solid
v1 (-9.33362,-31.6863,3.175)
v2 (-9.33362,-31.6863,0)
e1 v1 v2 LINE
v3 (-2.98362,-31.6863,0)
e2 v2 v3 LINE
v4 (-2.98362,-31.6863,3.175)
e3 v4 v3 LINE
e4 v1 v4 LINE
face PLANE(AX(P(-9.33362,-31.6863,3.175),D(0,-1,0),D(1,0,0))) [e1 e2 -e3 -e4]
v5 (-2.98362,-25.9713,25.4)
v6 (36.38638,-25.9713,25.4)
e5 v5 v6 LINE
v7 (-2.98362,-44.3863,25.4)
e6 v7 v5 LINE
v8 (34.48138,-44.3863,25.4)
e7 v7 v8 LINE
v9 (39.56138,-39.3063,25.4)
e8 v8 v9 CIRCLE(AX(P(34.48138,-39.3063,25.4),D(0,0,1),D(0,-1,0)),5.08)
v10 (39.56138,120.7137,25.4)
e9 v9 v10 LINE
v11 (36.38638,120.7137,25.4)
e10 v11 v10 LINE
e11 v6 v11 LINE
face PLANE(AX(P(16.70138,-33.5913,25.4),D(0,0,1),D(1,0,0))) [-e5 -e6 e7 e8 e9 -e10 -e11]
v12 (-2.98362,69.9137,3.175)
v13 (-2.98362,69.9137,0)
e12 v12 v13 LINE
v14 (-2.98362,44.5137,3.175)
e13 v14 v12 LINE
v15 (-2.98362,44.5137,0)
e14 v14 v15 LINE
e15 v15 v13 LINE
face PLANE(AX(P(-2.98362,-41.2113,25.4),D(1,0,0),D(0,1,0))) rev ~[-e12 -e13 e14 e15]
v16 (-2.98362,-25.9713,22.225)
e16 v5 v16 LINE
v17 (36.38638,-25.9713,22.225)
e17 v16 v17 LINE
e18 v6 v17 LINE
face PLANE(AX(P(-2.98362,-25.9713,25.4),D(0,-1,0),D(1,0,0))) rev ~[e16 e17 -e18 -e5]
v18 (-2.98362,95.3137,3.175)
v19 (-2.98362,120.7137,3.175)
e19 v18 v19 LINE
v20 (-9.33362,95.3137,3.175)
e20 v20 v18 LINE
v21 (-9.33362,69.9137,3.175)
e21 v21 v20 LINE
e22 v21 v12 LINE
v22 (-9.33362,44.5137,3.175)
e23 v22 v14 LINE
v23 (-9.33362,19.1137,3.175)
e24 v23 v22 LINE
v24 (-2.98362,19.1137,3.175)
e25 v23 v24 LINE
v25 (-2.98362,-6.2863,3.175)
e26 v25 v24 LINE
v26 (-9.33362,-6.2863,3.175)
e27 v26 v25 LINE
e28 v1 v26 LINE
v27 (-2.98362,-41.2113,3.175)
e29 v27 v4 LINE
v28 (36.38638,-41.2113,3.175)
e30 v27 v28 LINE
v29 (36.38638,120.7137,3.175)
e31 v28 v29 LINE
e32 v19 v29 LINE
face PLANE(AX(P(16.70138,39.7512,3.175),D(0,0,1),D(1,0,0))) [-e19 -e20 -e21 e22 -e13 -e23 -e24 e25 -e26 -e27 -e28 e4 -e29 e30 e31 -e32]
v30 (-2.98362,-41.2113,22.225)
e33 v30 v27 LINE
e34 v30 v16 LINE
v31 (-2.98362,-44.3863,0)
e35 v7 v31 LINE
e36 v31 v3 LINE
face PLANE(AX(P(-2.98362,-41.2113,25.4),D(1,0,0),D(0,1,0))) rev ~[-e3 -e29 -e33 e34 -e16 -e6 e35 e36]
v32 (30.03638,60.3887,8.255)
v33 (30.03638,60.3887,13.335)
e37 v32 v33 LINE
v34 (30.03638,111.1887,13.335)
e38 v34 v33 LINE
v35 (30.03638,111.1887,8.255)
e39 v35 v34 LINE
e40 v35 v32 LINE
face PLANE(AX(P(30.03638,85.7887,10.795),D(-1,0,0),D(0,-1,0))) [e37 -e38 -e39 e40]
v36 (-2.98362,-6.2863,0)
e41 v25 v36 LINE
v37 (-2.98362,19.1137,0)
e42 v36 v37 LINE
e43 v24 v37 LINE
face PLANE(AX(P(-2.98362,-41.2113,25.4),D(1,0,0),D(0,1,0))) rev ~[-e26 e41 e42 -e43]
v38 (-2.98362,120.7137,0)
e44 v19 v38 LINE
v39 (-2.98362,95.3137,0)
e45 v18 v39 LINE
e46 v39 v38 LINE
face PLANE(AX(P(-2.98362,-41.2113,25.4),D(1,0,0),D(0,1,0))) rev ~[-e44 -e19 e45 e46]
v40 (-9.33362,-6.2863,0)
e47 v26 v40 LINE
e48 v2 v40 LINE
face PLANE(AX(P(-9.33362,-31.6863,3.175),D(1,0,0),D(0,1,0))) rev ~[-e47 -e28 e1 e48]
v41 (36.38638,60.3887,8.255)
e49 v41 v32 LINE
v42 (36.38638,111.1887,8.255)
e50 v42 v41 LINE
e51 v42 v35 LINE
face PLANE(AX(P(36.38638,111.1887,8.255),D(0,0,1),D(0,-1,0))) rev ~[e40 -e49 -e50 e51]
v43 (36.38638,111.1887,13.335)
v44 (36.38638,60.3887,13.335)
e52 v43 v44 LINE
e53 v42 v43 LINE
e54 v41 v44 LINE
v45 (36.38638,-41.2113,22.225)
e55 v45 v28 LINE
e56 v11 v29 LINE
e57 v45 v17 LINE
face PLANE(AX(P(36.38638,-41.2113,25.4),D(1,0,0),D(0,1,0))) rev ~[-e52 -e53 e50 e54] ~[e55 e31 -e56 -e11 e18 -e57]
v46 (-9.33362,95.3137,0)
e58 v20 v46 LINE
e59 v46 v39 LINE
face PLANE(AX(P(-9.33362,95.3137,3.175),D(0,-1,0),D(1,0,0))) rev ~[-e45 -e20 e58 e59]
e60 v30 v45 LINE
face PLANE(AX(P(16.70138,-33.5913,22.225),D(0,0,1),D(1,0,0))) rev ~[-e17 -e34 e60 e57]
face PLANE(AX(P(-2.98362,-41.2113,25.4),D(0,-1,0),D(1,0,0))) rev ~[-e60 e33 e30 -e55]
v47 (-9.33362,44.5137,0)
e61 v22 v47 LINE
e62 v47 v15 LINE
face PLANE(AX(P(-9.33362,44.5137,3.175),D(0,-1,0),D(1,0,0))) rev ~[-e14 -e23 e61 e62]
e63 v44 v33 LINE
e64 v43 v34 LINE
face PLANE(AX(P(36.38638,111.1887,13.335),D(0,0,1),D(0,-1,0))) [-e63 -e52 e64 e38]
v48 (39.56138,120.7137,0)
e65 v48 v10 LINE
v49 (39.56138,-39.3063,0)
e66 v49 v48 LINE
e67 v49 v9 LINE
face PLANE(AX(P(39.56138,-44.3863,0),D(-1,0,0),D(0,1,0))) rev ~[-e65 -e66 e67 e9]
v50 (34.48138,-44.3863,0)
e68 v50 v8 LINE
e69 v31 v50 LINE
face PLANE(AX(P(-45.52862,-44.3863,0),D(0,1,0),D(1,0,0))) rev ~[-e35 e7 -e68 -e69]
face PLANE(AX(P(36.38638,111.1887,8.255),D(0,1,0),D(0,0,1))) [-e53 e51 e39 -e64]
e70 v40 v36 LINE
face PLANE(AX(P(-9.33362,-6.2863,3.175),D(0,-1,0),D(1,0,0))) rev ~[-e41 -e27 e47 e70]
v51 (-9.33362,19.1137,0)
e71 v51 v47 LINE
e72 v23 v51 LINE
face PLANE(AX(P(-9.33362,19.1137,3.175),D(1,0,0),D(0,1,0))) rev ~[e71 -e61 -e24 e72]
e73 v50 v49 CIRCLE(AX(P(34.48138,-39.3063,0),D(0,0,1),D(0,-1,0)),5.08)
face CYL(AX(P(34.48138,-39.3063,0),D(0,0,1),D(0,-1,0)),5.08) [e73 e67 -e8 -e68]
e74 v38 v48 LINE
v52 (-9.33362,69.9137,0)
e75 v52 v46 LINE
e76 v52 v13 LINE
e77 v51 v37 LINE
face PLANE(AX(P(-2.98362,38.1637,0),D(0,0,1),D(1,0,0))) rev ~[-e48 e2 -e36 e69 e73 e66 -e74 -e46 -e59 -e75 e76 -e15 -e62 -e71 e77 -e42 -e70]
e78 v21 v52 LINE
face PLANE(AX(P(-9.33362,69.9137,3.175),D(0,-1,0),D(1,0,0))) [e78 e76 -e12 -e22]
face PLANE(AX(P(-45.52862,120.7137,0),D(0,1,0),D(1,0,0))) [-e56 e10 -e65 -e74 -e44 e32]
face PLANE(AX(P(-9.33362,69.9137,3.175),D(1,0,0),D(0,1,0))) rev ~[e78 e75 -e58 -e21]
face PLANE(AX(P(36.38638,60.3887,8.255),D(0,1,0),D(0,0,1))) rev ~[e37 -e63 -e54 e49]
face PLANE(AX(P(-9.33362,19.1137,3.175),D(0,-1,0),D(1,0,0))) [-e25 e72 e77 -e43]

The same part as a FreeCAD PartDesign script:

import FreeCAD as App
import Part
import Sketcher
Q = App.Units.Quantity


def edges_at(feature, points):
    """Names of the edges that pass closest to the given points."""
    edges = feature.Shape.Edges
    near = lambda p: min(range(len(edges)), key=lambda i: edges[i].distToShape(Part.Vertex(*p))[0])
    return sorted({f"Edge{near(p) + 1}" for p in points})

doc = App.newDocument("Part")
body = doc.addObject("PartDesign::Body", "Body")

sketch1 = body.newObject("Sketcher::SketchObject", "Sketch")
sketch1.AttachmentSupport = (doc.getObject("XY_Plane"), [""])
sketch1.MapMode = "FlatFace"
sketch1.addGeometry(Part.LineSegment(App.Vector(-46, 121, 0), App.Vector(-46, -44, 0)), False)
sketch1.addGeometry(Part.LineSegment(App.Vector(-46, -44, 0), App.Vector(40, -44, 0)), False)
sketch1.addGeometry(Part.LineSegment(App.Vector(40, -44, 0), App.Vector(40, 121, 0)), False)
sketch1.addGeometry(Part.LineSegment(App.Vector(40, 121, 0), App.Vector(-46, 121, 0)), False)
sketch1.addConstraint(Sketcher.Constraint("Coincident", 0, 2, 1, 1))
sketch1.addConstraint(Sketcher.Constraint("Coincident", 1, 2, 2, 1))
sketch1.addConstraint(Sketcher.Constraint("Coincident", 2, 2, 3, 1))
sketch1.addConstraint(Sketcher.Constraint("Coincident", 3, 2, 0, 1))
sketch1.addConstraint(Sketcher.Constraint("Vertical", 0))
sketch1.addConstraint(Sketcher.Constraint("Horizontal", 1))
sketch1.addConstraint(Sketcher.Constraint("Vertical", 2))
sketch1.addConstraint(Sketcher.Constraint("Horizontal", 3))
sketch1.addConstraint(Sketcher.Constraint("DistanceY", 0, 2, 0, 1, Q("6.5 in")))
sketch1.addConstraint(Sketcher.Constraint("DistanceX", 1, 1, 1, 2, Q("3.35 in")))
sketch1.addConstraint(Sketcher.Constraint("DistanceY", 0, 2, -1, 1, 44.3863))
sketch1.addConstraint(Sketcher.Constraint("DistanceX", 0, 2, -1, 1, 45.52862))
pad1 = body.newObject("PartDesign::Pad", "Pad")
pad1.Profile = sketch1
pad1.Length = Q("1 in")

sketch2 = body.newObject("Sketcher::SketchObject", "Sketch001")
sketch2.AttachmentSupport = (doc.getObject("XY_Plane"), [""])
sketch2.MapMode = "FlatFace"
sketch2.AttachmentOffset = App.Placement(App.Vector(0, 0, 1 * 25.4), App.Rotation())
sketch2.addGeometry(Part.LineSegment(App.Vector(-3, 121, 0), App.Vector(-3, -41, 0)), False)
sketch2.addGeometry(Part.LineSegment(App.Vector(-3, -41, 0), App.Vector(36, -41, 0)), False)
sketch2.addGeometry(Part.LineSegment(App.Vector(36, -41, 0), App.Vector(36, 121, 0)), False)
sketch2.addGeometry(Part.LineSegment(App.Vector(36, 121, 0), App.Vector(-3, 121, 0)), False)
sketch2.addConstraint(Sketcher.Constraint("Coincident", 0, 2, 1, 1))
sketch2.addConstraint(Sketcher.Constraint("Coincident", 1, 2, 2, 1))
sketch2.addConstraint(Sketcher.Constraint("Coincident", 2, 2, 3, 1))
sketch2.addConstraint(Sketcher.Constraint("Coincident", 3, 2, 0, 1))
sketch2.addConstraint(Sketcher.Constraint("Vertical", 0))
sketch2.addConstraint(Sketcher.Constraint("Horizontal", 1))
sketch2.addConstraint(Sketcher.Constraint("Vertical", 2))
sketch2.addConstraint(Sketcher.Constraint("Horizontal", 3))
sketch2.addConstraint(Sketcher.Constraint("DistanceX", 1, 1, 1, 2, Q("1.55 in")))
sketch2.addConstraint(Sketcher.Constraint("DistanceY", 0, 2, 0, 1, Q("6.375 in")))
sketch2.addConstraint(Sketcher.Constraint("DistanceY", 0, 2, -1, 1, 41.2113))
sketch2.addConstraint(Sketcher.Constraint("DistanceX", 0, 2, -1, 1, 2.98362))
pocket1 = body.newObject("PartDesign::Pocket", "Pocket")
pocket1.Profile = sketch2
pocket1.Length = Q("0.875 in")

sketch3 = body.newObject("Sketcher::SketchObject", "Sketch002")
sketch3.AttachmentSupport = (doc.getObject("YZ_Plane"), [""])
sketch3.MapMode = "FlatFace"
sketch3.AttachmentOffset = App.Placement(App.Vector(0, 0, 36.38638), App.Rotation())
sketch3.addGeometry(Part.LineSegment(App.Vector(111, 13, 0), App.Vector(111, 8, 0)), False)
sketch3.addGeometry(Part.LineSegment(App.Vector(111, 8, 0), App.Vector(60, 8, 0)), False)
sketch3.addGeometry(Part.LineSegment(App.Vector(60, 8, 0), App.Vector(60, 13, 0)), False)
sketch3.addGeometry(Part.LineSegment(App.Vector(60, 13, 0), App.Vector(111, 13, 0)), False)
sketch3.addConstraint(Sketcher.Constraint("Coincident", 0, 2, 1, 1))
sketch3.addConstraint(Sketcher.Constraint("Coincident", 1, 2, 2, 1))
sketch3.addConstraint(Sketcher.Constraint("Coincident", 2, 2, 3, 1))
sketch3.addConstraint(Sketcher.Constraint("Coincident", 3, 2, 0, 1))
sketch3.addConstraint(Sketcher.Constraint("Vertical", 0))
sketch3.addConstraint(Sketcher.Constraint("Horizontal", 1))
sketch3.addConstraint(Sketcher.Constraint("Vertical", 2))
sketch3.addConstraint(Sketcher.Constraint("Horizontal", 3))
sketch3.addConstraint(Sketcher.Constraint("DistanceX", 1, 2, 1, 1, Q("2 in")))
sketch3.addConstraint(Sketcher.Constraint("DistanceY", 0, 2, 0, 1, Q("0.2 in")))
sketch3.addConstraint(Sketcher.Constraint("DistanceY", -1, 1, 0, 2, Q("0.325 in")))
sketch3.addConstraint(Sketcher.Constraint("DistanceX", -1, 1, 0, 2, 111.1887))
pad2 = body.newObject("PartDesign::Pad", "Pad001")
pad2.Profile = sketch3
pad2.Length = Q("0.25 in")
pad2.Reversed = True

sketch4 = body.newObject("Sketcher::SketchObject", "Sketch003")
sketch4.AttachmentSupport = (doc.getObject("XY_Plane"), [""])
sketch4.MapMode = "FlatFace"
sketch4.AttachmentOffset = App.Placement(App.Vector(0, 0, 1 * 25.4), App.Rotation())
sketch4.addGeometry(Part.LineSegment(App.Vector(-3, 121, 0), App.Vector(-46, 121, 0)), False)
sketch4.addGeometry(Part.LineSegment(App.Vector(-46, 121, 0), App.Vector(-46, -44, 0)), False)
sketch4.addGeometry(Part.LineSegment(App.Vector(-46, -44, 0), App.Vector(-3, -44, 0)), False)
sketch4.addGeometry(Part.LineSegment(App.Vector(-3, -44, 0), App.Vector(-3, 121, 0)), False)
sketch4.addConstraint(Sketcher.Constraint("Coincident", 0, 2, 1, 1))
sketch4.addConstraint(Sketcher.Constraint("Coincident", 1, 2, 2, 1))
sketch4.addConstraint(Sketcher.Constraint("Coincident", 2, 2, 3, 1))
sketch4.addConstraint(Sketcher.Constraint("Coincident", 3, 2, 0, 1))
sketch4.addConstraint(Sketcher.Constraint("Horizontal", 0))
sketch4.addConstraint(Sketcher.Constraint("Vertical", 1))
sketch4.addConstraint(Sketcher.Constraint("Horizontal", 2))
sketch4.addConstraint(Sketcher.Constraint("Vertical", 3))
sketch4.addConstraint(Sketcher.Constraint("DistanceY", 1, 2, 1, 1, Q("6.5 in")))
sketch4.addConstraint(Sketcher.Constraint("DistanceX", 0, 2, 0, 1, Q("1.675 in")))
sketch4.addConstraint(Sketcher.Constraint("DistanceY", -1, 1, 0, 2, 120.7137))
sketch4.addConstraint(Sketcher.Constraint("DistanceX", 0, 2, -1, 1, 45.52862))
pocket2 = body.newObject("PartDesign::Pocket", "Pocket001")
pocket2.Profile = sketch4
pocket2.Type = "ThroughAll"

sketch5 = body.newObject("Sketcher::SketchObject", "Sketch004")
sketch5.AttachmentSupport = (doc.getObject("XY_Plane"), [""])
sketch5.MapMode = "FlatFace"
sketch5.AttachmentOffset = App.Placement(App.Vector(0, 0, 1 * 25.4), App.Rotation())
sketch5.addGeometry(Part.LineSegment(App.Vector(-3, -26, 0), App.Vector(-3, -41, 0)), False)
sketch5.addGeometry(Part.LineSegment(App.Vector(-3, -41, 0), App.Vector(36, -41, 0)), False)
sketch5.addGeometry(Part.LineSegment(App.Vector(36, -41, 0), App.Vector(36, -26, 0)), False)
sketch5.addGeometry(Part.LineSegment(App.Vector(36, -26, 0), App.Vector(-3, -26, 0)), False)
sketch5.addConstraint(Sketcher.Constraint("Coincident", 0, 2, 1, 1))
sketch5.addConstraint(Sketcher.Constraint("Coincident", 1, 2, 2, 1))
sketch5.addConstraint(Sketcher.Constraint("Coincident", 2, 2, 3, 1))
sketch5.addConstraint(Sketcher.Constraint("Coincident", 3, 2, 0, 1))
sketch5.addConstraint(Sketcher.Constraint("Vertical", 0))
sketch5.addConstraint(Sketcher.Constraint("Horizontal", 1))
sketch5.addConstraint(Sketcher.Constraint("Vertical", 2))
sketch5.addConstraint(Sketcher.Constraint("Horizontal", 3))
sketch5.addConstraint(Sketcher.Constraint("DistanceY", 0, 2, 0, 1, Q("0.6 in")))
sketch5.addConstraint(Sketcher.Constraint("DistanceX", 1, 1, 1, 2, Q("1.55 in")))
sketch5.addConstraint(Sketcher.Constraint("DistanceY", 0, 2, -1, 1, 41.2113))
sketch5.addConstraint(Sketcher.Constraint("DistanceX", 0, 2, -1, 1, 2.98362))
pad3 = body.newObject("PartDesign::Pad", "Pad002")
pad3.Profile = sketch5
pad3.Length = Q("0.125 in")
pad3.Reversed = True

sketch6 = body.newObject("Sketcher::SketchObject", "Sketch005")
sketch6.AttachmentSupport = (doc.getObject("XY_Plane"), [""])
sketch6.MapMode = "FlatFace"
sketch6.AttachmentOffset = App.Placement(App.Vector(0, 0, 0.125 * 25.4), App.Rotation())
sketch6.addGeometry(Part.LineSegment(App.Vector(-9, 95, 0), App.Vector(-9, 70, 0)), False)
sketch6.addGeometry(Part.LineSegment(App.Vector(-9, 70, 0), App.Vector(-3, 70, 0)), False)
sketch6.addGeometry(Part.LineSegment(App.Vector(-3, 70, 0), App.Vector(-3, 95, 0)), False)
sketch6.addGeometry(Part.LineSegment(App.Vector(-3, 95, 0), App.Vector(-9, 95, 0)), False)
sketch6.addGeometry(Part.LineSegment(App.Vector(-9, 45, 0), App.Vector(-9, 19, 0)), False)
sketch6.addGeometry(Part.LineSegment(App.Vector(-9, 19, 0), App.Vector(-3, 19, 0)), False)
sketch6.addGeometry(Part.LineSegment(App.Vector(-3, 19, 0), App.Vector(-3, 45, 0)), False)
sketch6.addGeometry(Part.LineSegment(App.Vector(-3, 45, 0), App.Vector(-9, 45, 0)), False)
sketch6.addGeometry(Part.LineSegment(App.Vector(-9, -6, 0), App.Vector(-9, -32, 0)), False)
sketch6.addGeometry(Part.LineSegment(App.Vector(-9, -32, 0), App.Vector(-3, -32, 0)), False)
sketch6.addGeometry(Part.LineSegment(App.Vector(-3, -32, 0), App.Vector(-3, -6, 0)), False)
sketch6.addGeometry(Part.LineSegment(App.Vector(-3, -6, 0), App.Vector(-9, -6, 0)), False)
sketch6.addConstraint(Sketcher.Constraint("Coincident", 0, 2, 1, 1))
sketch6.addConstraint(Sketcher.Constraint("Coincident", 1, 2, 2, 1))
sketch6.addConstraint(Sketcher.Constraint("Coincident", 2, 2, 3, 1))
sketch6.addConstraint(Sketcher.Constraint("Coincident", 3, 2, 0, 1))
sketch6.addConstraint(Sketcher.Constraint("Coincident", 4, 2, 5, 1))
sketch6.addConstraint(Sketcher.Constraint("Coincident", 5, 2, 6, 1))
sketch6.addConstraint(Sketcher.Constraint("Coincident", 6, 2, 7, 1))
sketch6.addConstraint(Sketcher.Constraint("Coincident", 7, 2, 4, 1))
sketch6.addConstraint(Sketcher.Constraint("Coincident", 8, 2, 9, 1))
sketch6.addConstraint(Sketcher.Constraint("Coincident", 9, 2, 10, 1))
sketch6.addConstraint(Sketcher.Constraint("Coincident", 10, 2, 11, 1))
sketch6.addConstraint(Sketcher.Constraint("Coincident", 11, 2, 8, 1))
sketch6.addConstraint(Sketcher.Constraint("Vertical", 0))
sketch6.addConstraint(Sketcher.Constraint("Horizontal", 1))
sketch6.addConstraint(Sketcher.Constraint("Vertical", 2))
sketch6.addConstraint(Sketcher.Constraint("Horizontal", 3))
sketch6.addConstraint(Sketcher.Constraint("Vertical", 4))
sketch6.addConstraint(Sketcher.Constraint("Horizontal", 5))
sketch6.addConstraint(Sketcher.Constraint("Vertical", 6))
sketch6.addConstraint(Sketcher.Constraint("Horizontal", 7))
sketch6.addConstraint(Sketcher.Constraint("Vertical", 8))
sketch6.addConstraint(Sketcher.Constraint("Horizontal", 9))
sketch6.addConstraint(Sketcher.Constraint("Vertical", 10))
sketch6.addConstraint(Sketcher.Constraint("Horizontal", 11))
sketch6.addConstraint(Sketcher.Constraint("Vertical", 3, 2, 4, 2))
sketch6.addConstraint(Sketcher.Constraint("Vertical", 2, 2, 5, 2))
sketch6.addConstraint(Sketcher.Constraint("Vertical", 7, 2, 8, 2))
sketch6.addConstraint(Sketcher.Constraint("Vertical", 6, 2, 9, 2))
sketch6.addConstraint(Sketcher.Constraint("Equal", 2, 4))
sketch6.addConstraint(Sketcher.Constraint("Equal", 6, 8))
sketch6.addConstraint(Sketcher.Constraint("DistanceY", 0, 2, 0, 1, Q("1 in")))
sketch6.addConstraint(Sketcher.Constraint("DistanceY", 4, 2, 0, 2, Q("2 in")))
sketch6.addConstraint(Sketcher.Constraint("DistanceY", 8, 2, 4, 2, Q("2 in")))
sketch6.addConstraint(Sketcher.Constraint("DistanceX", 1, 1, 1, 2, Q("0.25 in")))
sketch6.addConstraint(Sketcher.Constraint("DistanceY", -1, 1, 0, 2, 69.9137))
sketch6.addConstraint(Sketcher.Constraint("DistanceX", 0, 2, -1, 1, 9.33362))
pad4 = body.newObject("PartDesign::Pad", "Pad003")
pad4.Profile = sketch6
pad4.Length = Q("0.125 in")
pad4.Reversed = True
doc.recompute()

fillet = body.newObject("PartDesign::Fillet", "Fillet")
fillet.Base = (pad4, edges_at(pad4, [(39.561, -44.386, 12.7)]))
fillet.Radius = Q("0.2 in")

doc.recompute()
